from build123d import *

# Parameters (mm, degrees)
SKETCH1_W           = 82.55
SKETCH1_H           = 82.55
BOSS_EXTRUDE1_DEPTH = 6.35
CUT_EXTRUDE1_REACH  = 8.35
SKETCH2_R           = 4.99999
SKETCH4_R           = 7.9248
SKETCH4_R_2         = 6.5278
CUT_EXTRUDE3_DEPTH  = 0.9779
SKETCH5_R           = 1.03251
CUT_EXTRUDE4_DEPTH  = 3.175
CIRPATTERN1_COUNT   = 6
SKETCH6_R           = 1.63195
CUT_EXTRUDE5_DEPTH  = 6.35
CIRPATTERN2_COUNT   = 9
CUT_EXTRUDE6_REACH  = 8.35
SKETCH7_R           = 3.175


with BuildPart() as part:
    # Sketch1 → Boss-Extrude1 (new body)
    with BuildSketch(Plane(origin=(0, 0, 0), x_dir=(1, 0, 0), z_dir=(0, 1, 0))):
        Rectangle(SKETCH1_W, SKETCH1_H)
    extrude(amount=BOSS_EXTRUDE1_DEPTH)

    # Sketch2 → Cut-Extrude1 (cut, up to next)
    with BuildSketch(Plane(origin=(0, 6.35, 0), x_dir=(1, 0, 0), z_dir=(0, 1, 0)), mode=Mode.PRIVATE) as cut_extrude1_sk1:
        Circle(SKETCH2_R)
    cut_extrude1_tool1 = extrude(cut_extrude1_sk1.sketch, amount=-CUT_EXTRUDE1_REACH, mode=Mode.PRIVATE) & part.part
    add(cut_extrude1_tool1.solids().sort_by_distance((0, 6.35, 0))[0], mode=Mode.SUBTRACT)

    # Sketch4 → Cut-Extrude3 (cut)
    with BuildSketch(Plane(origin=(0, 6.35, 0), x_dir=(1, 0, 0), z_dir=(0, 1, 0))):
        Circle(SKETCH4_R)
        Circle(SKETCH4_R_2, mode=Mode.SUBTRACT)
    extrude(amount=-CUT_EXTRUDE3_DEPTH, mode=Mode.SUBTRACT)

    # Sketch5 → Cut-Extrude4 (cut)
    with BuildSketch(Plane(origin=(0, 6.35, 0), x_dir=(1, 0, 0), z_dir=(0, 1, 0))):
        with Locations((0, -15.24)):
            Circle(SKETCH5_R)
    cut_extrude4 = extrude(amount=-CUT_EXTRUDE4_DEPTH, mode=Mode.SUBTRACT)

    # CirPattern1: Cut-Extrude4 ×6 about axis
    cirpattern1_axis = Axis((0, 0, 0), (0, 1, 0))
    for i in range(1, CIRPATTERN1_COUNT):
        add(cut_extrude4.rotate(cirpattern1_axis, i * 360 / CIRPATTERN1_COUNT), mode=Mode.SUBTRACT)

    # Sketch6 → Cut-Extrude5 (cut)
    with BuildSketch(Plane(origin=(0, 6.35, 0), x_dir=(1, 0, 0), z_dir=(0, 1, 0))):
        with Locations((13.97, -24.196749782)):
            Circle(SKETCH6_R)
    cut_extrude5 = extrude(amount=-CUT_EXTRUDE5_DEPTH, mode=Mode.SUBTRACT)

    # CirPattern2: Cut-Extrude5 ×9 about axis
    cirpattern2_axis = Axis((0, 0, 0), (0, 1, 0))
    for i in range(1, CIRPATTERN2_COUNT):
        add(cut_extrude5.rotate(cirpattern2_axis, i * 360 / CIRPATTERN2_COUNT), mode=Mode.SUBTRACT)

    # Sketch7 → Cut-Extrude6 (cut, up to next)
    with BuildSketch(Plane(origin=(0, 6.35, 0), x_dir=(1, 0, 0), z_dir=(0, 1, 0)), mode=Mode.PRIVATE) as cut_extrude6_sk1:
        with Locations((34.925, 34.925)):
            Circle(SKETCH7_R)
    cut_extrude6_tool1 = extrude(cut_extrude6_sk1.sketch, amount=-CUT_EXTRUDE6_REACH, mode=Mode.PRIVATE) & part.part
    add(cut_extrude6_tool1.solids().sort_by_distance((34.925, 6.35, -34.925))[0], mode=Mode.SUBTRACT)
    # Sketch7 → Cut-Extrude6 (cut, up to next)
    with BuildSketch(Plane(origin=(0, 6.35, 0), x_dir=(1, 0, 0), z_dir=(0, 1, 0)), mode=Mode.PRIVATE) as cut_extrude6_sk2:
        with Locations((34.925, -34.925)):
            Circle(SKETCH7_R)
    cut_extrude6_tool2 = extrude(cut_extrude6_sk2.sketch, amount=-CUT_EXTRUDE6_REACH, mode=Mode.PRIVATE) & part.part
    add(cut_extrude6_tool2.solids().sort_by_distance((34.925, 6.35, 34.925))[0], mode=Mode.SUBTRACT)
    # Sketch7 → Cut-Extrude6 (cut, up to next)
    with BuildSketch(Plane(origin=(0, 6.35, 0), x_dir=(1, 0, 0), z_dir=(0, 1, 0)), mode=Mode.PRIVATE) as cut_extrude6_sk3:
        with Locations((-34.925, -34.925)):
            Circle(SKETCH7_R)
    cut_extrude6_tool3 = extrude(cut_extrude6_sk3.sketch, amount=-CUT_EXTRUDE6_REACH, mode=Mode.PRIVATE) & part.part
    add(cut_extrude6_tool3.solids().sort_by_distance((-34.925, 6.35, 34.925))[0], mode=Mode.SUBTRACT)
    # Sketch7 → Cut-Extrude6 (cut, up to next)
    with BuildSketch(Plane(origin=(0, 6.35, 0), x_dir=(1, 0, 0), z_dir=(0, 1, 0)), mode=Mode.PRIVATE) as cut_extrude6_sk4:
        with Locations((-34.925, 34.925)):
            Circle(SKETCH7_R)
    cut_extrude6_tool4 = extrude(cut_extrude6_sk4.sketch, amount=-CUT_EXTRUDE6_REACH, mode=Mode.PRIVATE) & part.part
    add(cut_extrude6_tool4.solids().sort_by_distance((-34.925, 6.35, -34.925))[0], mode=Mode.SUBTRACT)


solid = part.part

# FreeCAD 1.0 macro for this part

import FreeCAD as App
import Part
import Sketcher
from FreeCAD import Vector
Q = App.Units.Quantity


def add_polygon(sketch, points):
    """Adds a closed chain of lines whose ends are joined by coincident constraints."""
    first, n = sketch.GeometryCount, len(points)
    for a, b in zip(points, points[1:] + points[:1]):
        sketch.addGeometry(Part.LineSegment(App.Vector(*a, 0), App.Vector(*b, 0)), False)
    for i in range(n):
        sketch.addConstraint(Sketcher.Constraint("Coincident", first + i, 2, first + (i + 1) % n, 1))

doc = App.newDocument("Part")
body = doc.addObject("PartDesign::Body", "Body")

# Sketch on XZ plane
sketch1 = doc.addObject("Sketcher::SketchObject", "Sketch")
body.addObject(sketch1)
sketch1.AttachmentSupport = (doc.XZ_Plane, [""])
sketch1.MapMode = "FlatFace"
add_polygon(sketch1, [(-41, -41), (-41, 41), (41, 41), (41, -41)])  # lines 0-3
sketch1.addConstraint(Sketcher.Constraint("Vertical", 0))
sketch1.addConstraint(Sketcher.Constraint("Horizontal", 1))
sketch1.addConstraint(Sketcher.Constraint("Vertical", 2))
sketch1.addConstraint(Sketcher.Constraint("Horizontal", 3))
sketch1.addConstraint(Sketcher.Constraint("Symmetric", 0, 2, 2, 2, -1, 1))
sketch1.addConstraint(Sketcher.Constraint("Equal", 3, 0))
sketch1.addConstraint(Sketcher.Constraint("DistanceX", 1, 1, 1, 2, Q("3.25 in")))
pad1 = doc.addObject("PartDesign::Pad", "Pad")
body.addObject(pad1)
pad1.Profile = sketch1
pad1.Length = Q("0.25 in")
pad1.Reversed = True

# Sketch on XZ plane
sketch2 = doc.addObject("Sketcher::SketchObject", "Sketch001")
body.addObject(sketch2)
sketch2.AttachmentSupport = (doc.XZ_Plane, [""])
sketch2.MapMode = "FlatFace"
sketch2.AttachmentOffset = App.Placement(Vector(0, 0, -0.25 * 25.4), App.Rotation())
sketch2.addGeometry(Part.Circle(Vector(0, 0, 0), Vector(0, 0, 1), 5), False)
sketch2.addConstraint(Sketcher.Constraint("Coincident", 0, 3, -1, 1))
sketch2.addConstraint(Sketcher.Constraint("Diameter", 0, Q("0.3937 in")))
pocket1 = doc.addObject("PartDesign::Pocket", "Pocket")
body.addObject(pocket1)
pocket1.Profile = sketch2
pocket1.Type = "UpToFirst"
pocket1.Reversed = True

# Sketch on XZ plane
sketch3 = doc.addObject("Sketcher::SketchObject", "Sketch002")
body.addObject(sketch3)
sketch3.AttachmentSupport = (doc.XZ_Plane, [""])
sketch3.MapMode = "FlatFace"
sketch3.AttachmentOffset = App.Placement(Vector(0, 0, -0.25 * 25.4), App.Rotation())
sketch3.addGeometry(Part.Circle(Vector(0, 0, 0), Vector(0, 0, 1), 8), False)
sketch3.addGeometry(Part.Circle(Vector(0, 0, 0), Vector(0, 0, 1), 7), False)
sketch3.addConstraint(Sketcher.Constraint("Coincident", 0, 3, -1, 1))
sketch3.addConstraint(Sketcher.Constraint("Coincident", 1, 3, -1, 1))
sketch3.addConstraint(Sketcher.Constraint("Diameter", 0, Q("0.624 in")))
sketch3.addConstraint(Sketcher.Constraint("Diameter", 1, Q("0.514 in")))
pocket2 = doc.addObject("PartDesign::Pocket", "Pocket001")
body.addObject(pocket2)
pocket2.Profile = sketch3
pocket2.Length = Q("0.0385 in")
pocket2.Reversed = True

# Sketch on XZ plane
sketch4 = doc.addObject("Sketcher::SketchObject", "Sketch003")
body.addObject(sketch4)
sketch4.AttachmentSupport = (doc.XZ_Plane, [""])
sketch4.MapMode = "FlatFace"
sketch4.AttachmentOffset = App.Placement(Vector(0, 0, -0.25 * 25.4), App.Rotation())
sketch4.addGeometry(Part.Circle(Vector(0, 15.2, 0), Vector(0, 0, 1), 1), False)
sketch4.addConstraint(Sketcher.Constraint("PointOnObject", 0, 3, -2))
sketch4.addConstraint(Sketcher.Constraint("Diameter", 0, Q("0.0813 in")))
sketch4.addConstraint(Sketcher.Constraint("DistanceY", -1, 1, 0, 3, Q("0.6 in")))
pocket3 = doc.addObject("PartDesign::Pocket", "Pocket002")
body.addObject(pocket3)
pocket3.Profile = sketch4
pocket3.Length = Q("0.125 in")
pocket3.Reversed = True
doc.recompute()

polarpattern = doc.addObject("PartDesign::PolarPattern", "PolarPattern")
body.addObject(polarpattern)
polarpattern.Originals = [pocket3]
polarpattern.Axis = (doc.Y_Axis, [""])
polarpattern.Angle = 360
polarpattern.Occurrences = 6
body.Tip = polarpattern

# Sketch on XZ plane
sketch5 = doc.addObject("Sketcher::SketchObject", "Sketch004")
body.addObject(sketch5)
sketch5.AttachmentSupport = (doc.XZ_Plane, [""])
sketch5.MapMode = "FlatFace"
sketch5.AttachmentOffset = App.Placement(Vector(0, 0, -0.25 * 25.4), App.Rotation())
sketch5.addGeometry(Part.Circle(Vector(14, 24.2, 0), Vector(0, 0, 1), 1.6), False)
sketch5.addConstraint(Sketcher.Constraint("Diameter", 0, Q("0.1285 in")))
sketch5.addConstraint(Sketcher.Constraint("DistanceX", -1, 1, 0, 3, Q("0.55 in")))
sketch5.addConstraint(Sketcher.Constraint("DistanceY", -1, 1, 0, 3, 24.19675))
pocket4 = doc.addObject("PartDesign::Pocket", "Pocket003")
body.addObject(pocket4)
pocket4.Profile = sketch5
pocket4.Length = Q("0.25 in")
pocket4.Reversed = True
doc.recompute()

polarpattern2 = doc.addObject("PartDesign::PolarPattern", "PolarPattern001")
body.addObject(polarpattern2)
polarpattern2.Originals = [pocket4]
polarpattern2.Axis = (doc.Y_Axis, [""])
polarpattern2.Angle = 360
polarpattern2.Occurrences = 9
body.Tip = polarpattern2

# Sketch on XZ plane
sketch6 = doc.addObject("Sketcher::SketchObject", "Sketch005")
body.addObject(sketch6)
sketch6.AttachmentSupport = (doc.XZ_Plane, [""])
sketch6.MapMode = "FlatFace"
sketch6.AttachmentOffset = App.Placement(Vector(0, 0, -0.25 * 25.4), App.Rotation())
sketch6.addGeometry(Part.Circle(Vector(34.9, -34.9, 0), Vector(0, 0, 1), 3.2), False)
sketch6.addConstraint(Sketcher.Constraint("Diameter", 0, Q("0.25 in")))
sketch6.addConstraint(Sketcher.Constraint("DistanceX", -1, 1, 0, 3, Q("1.375 in")))
sketch6.addConstraint(Sketcher.Constraint("DistanceY", 0, 3, -1, 1, Q("1.375 in")))
pocket5 = doc.addObject("PartDesign::Pocket", "Pocket004")
body.addObject(pocket5)
pocket5.Profile = sketch6
pocket5.Type = "UpToFirst"
pocket5.Reversed = True

# Sketch on XZ plane
sketch7 = doc.addObject("Sketcher::SketchObject", "Sketch006")
body.addObject(sketch7)
sketch7.AttachmentSupport = (doc.XZ_Plane, [""])
sketch7.MapMode = "FlatFace"
sketch7.AttachmentOffset = App.Placement(Vector(0, 0, -0.25 * 25.4), App.Rotation())
sketch7.addGeometry(Part.Circle(Vector(34.9, 34.9, 0), Vector(0, 0, 1), 3.2), False)
sketch7.addConstraint(Sketcher.Constraint("Diameter", 0, Q("0.25 in")))
sketch7.addConstraint(Sketcher.Constraint("DistanceX", -1, 1, 0, 3, Q("1.375 in")))
sketch7.addConstraint(Sketcher.Constraint("DistanceY", -1, 1, 0, 3, Q("1.375 in")))
pocket6 = doc.addObject("PartDesign::Pocket", "Pocket005")
body.addObject(pocket6)
pocket6.Profile = sketch7
pocket6.Type = "UpToFirst"
pocket6.Reversed = True

# Sketch on XZ plane
sketch8 = doc.addObject("Sketcher::SketchObject", "Sketch007")
body.addObject(sketch8)
sketch8.AttachmentSupport = (doc.XZ_Plane, [""])
sketch8.MapMode = "FlatFace"
sketch8.AttachmentOffset = App.Placement(Vector(0, 0, -0.25 * 25.4), App.Rotation())
sketch8.addGeometry(Part.Circle(Vector(-34.9, 34.9, 0), Vector(0, 0, 1), 3.2), False)
sketch8.addConstraint(Sketcher.Constraint("Diameter", 0, Q("0.25 in")))
sketch8.addConstraint(Sketcher.Constraint("DistanceX", 0, 3, -1, 1, Q("1.375 in")))
sketch8.addConstraint(Sketcher.Constraint("DistanceY", -1, 1, 0, 3, Q("1.375 in")))
pocket7 = doc.addObject("PartDesign::Pocket", "Pocket006")
body.addObject(pocket7)
pocket7.Profile = sketch8
pocket7.Type = "UpToFirst"
pocket7.Reversed = True

# Sketch on XZ plane
sketch9 = doc.addObject("Sketcher::SketchObject", "Sketch008")
body.addObject(sketch9)
sketch9.AttachmentSupport = (doc.XZ_Plane, [""])
sketch9.MapMode = "FlatFace"
sketch9.AttachmentOffset = App.Placement(Vector(0, 0, -0.25 * 25.4), App.Rotation())
sketch9.addGeometry(Part.Circle(Vector(-34.9, -34.9, 0), Vector(0, 0, 1), 3.2), False)
sketch9.addConstraint(Sketcher.Constraint("Diameter", 0, Q("0.25 in")))
sketch9.addConstraint(Sketcher.Constraint("DistanceX", 0, 3, -1, 1, Q("1.375 in")))
sketch9.addConstraint(Sketcher.Constraint("DistanceY", 0, 3, -1, 1, Q("1.375 in")))
pocket8 = doc.addObject("PartDesign::Pocket", "Pocket007")
body.addObject(pocket8)
pocket8.Profile = sketch9
pocket8.Type = "UpToFirst"
pocket8.Reversed = True

doc.recompute()
